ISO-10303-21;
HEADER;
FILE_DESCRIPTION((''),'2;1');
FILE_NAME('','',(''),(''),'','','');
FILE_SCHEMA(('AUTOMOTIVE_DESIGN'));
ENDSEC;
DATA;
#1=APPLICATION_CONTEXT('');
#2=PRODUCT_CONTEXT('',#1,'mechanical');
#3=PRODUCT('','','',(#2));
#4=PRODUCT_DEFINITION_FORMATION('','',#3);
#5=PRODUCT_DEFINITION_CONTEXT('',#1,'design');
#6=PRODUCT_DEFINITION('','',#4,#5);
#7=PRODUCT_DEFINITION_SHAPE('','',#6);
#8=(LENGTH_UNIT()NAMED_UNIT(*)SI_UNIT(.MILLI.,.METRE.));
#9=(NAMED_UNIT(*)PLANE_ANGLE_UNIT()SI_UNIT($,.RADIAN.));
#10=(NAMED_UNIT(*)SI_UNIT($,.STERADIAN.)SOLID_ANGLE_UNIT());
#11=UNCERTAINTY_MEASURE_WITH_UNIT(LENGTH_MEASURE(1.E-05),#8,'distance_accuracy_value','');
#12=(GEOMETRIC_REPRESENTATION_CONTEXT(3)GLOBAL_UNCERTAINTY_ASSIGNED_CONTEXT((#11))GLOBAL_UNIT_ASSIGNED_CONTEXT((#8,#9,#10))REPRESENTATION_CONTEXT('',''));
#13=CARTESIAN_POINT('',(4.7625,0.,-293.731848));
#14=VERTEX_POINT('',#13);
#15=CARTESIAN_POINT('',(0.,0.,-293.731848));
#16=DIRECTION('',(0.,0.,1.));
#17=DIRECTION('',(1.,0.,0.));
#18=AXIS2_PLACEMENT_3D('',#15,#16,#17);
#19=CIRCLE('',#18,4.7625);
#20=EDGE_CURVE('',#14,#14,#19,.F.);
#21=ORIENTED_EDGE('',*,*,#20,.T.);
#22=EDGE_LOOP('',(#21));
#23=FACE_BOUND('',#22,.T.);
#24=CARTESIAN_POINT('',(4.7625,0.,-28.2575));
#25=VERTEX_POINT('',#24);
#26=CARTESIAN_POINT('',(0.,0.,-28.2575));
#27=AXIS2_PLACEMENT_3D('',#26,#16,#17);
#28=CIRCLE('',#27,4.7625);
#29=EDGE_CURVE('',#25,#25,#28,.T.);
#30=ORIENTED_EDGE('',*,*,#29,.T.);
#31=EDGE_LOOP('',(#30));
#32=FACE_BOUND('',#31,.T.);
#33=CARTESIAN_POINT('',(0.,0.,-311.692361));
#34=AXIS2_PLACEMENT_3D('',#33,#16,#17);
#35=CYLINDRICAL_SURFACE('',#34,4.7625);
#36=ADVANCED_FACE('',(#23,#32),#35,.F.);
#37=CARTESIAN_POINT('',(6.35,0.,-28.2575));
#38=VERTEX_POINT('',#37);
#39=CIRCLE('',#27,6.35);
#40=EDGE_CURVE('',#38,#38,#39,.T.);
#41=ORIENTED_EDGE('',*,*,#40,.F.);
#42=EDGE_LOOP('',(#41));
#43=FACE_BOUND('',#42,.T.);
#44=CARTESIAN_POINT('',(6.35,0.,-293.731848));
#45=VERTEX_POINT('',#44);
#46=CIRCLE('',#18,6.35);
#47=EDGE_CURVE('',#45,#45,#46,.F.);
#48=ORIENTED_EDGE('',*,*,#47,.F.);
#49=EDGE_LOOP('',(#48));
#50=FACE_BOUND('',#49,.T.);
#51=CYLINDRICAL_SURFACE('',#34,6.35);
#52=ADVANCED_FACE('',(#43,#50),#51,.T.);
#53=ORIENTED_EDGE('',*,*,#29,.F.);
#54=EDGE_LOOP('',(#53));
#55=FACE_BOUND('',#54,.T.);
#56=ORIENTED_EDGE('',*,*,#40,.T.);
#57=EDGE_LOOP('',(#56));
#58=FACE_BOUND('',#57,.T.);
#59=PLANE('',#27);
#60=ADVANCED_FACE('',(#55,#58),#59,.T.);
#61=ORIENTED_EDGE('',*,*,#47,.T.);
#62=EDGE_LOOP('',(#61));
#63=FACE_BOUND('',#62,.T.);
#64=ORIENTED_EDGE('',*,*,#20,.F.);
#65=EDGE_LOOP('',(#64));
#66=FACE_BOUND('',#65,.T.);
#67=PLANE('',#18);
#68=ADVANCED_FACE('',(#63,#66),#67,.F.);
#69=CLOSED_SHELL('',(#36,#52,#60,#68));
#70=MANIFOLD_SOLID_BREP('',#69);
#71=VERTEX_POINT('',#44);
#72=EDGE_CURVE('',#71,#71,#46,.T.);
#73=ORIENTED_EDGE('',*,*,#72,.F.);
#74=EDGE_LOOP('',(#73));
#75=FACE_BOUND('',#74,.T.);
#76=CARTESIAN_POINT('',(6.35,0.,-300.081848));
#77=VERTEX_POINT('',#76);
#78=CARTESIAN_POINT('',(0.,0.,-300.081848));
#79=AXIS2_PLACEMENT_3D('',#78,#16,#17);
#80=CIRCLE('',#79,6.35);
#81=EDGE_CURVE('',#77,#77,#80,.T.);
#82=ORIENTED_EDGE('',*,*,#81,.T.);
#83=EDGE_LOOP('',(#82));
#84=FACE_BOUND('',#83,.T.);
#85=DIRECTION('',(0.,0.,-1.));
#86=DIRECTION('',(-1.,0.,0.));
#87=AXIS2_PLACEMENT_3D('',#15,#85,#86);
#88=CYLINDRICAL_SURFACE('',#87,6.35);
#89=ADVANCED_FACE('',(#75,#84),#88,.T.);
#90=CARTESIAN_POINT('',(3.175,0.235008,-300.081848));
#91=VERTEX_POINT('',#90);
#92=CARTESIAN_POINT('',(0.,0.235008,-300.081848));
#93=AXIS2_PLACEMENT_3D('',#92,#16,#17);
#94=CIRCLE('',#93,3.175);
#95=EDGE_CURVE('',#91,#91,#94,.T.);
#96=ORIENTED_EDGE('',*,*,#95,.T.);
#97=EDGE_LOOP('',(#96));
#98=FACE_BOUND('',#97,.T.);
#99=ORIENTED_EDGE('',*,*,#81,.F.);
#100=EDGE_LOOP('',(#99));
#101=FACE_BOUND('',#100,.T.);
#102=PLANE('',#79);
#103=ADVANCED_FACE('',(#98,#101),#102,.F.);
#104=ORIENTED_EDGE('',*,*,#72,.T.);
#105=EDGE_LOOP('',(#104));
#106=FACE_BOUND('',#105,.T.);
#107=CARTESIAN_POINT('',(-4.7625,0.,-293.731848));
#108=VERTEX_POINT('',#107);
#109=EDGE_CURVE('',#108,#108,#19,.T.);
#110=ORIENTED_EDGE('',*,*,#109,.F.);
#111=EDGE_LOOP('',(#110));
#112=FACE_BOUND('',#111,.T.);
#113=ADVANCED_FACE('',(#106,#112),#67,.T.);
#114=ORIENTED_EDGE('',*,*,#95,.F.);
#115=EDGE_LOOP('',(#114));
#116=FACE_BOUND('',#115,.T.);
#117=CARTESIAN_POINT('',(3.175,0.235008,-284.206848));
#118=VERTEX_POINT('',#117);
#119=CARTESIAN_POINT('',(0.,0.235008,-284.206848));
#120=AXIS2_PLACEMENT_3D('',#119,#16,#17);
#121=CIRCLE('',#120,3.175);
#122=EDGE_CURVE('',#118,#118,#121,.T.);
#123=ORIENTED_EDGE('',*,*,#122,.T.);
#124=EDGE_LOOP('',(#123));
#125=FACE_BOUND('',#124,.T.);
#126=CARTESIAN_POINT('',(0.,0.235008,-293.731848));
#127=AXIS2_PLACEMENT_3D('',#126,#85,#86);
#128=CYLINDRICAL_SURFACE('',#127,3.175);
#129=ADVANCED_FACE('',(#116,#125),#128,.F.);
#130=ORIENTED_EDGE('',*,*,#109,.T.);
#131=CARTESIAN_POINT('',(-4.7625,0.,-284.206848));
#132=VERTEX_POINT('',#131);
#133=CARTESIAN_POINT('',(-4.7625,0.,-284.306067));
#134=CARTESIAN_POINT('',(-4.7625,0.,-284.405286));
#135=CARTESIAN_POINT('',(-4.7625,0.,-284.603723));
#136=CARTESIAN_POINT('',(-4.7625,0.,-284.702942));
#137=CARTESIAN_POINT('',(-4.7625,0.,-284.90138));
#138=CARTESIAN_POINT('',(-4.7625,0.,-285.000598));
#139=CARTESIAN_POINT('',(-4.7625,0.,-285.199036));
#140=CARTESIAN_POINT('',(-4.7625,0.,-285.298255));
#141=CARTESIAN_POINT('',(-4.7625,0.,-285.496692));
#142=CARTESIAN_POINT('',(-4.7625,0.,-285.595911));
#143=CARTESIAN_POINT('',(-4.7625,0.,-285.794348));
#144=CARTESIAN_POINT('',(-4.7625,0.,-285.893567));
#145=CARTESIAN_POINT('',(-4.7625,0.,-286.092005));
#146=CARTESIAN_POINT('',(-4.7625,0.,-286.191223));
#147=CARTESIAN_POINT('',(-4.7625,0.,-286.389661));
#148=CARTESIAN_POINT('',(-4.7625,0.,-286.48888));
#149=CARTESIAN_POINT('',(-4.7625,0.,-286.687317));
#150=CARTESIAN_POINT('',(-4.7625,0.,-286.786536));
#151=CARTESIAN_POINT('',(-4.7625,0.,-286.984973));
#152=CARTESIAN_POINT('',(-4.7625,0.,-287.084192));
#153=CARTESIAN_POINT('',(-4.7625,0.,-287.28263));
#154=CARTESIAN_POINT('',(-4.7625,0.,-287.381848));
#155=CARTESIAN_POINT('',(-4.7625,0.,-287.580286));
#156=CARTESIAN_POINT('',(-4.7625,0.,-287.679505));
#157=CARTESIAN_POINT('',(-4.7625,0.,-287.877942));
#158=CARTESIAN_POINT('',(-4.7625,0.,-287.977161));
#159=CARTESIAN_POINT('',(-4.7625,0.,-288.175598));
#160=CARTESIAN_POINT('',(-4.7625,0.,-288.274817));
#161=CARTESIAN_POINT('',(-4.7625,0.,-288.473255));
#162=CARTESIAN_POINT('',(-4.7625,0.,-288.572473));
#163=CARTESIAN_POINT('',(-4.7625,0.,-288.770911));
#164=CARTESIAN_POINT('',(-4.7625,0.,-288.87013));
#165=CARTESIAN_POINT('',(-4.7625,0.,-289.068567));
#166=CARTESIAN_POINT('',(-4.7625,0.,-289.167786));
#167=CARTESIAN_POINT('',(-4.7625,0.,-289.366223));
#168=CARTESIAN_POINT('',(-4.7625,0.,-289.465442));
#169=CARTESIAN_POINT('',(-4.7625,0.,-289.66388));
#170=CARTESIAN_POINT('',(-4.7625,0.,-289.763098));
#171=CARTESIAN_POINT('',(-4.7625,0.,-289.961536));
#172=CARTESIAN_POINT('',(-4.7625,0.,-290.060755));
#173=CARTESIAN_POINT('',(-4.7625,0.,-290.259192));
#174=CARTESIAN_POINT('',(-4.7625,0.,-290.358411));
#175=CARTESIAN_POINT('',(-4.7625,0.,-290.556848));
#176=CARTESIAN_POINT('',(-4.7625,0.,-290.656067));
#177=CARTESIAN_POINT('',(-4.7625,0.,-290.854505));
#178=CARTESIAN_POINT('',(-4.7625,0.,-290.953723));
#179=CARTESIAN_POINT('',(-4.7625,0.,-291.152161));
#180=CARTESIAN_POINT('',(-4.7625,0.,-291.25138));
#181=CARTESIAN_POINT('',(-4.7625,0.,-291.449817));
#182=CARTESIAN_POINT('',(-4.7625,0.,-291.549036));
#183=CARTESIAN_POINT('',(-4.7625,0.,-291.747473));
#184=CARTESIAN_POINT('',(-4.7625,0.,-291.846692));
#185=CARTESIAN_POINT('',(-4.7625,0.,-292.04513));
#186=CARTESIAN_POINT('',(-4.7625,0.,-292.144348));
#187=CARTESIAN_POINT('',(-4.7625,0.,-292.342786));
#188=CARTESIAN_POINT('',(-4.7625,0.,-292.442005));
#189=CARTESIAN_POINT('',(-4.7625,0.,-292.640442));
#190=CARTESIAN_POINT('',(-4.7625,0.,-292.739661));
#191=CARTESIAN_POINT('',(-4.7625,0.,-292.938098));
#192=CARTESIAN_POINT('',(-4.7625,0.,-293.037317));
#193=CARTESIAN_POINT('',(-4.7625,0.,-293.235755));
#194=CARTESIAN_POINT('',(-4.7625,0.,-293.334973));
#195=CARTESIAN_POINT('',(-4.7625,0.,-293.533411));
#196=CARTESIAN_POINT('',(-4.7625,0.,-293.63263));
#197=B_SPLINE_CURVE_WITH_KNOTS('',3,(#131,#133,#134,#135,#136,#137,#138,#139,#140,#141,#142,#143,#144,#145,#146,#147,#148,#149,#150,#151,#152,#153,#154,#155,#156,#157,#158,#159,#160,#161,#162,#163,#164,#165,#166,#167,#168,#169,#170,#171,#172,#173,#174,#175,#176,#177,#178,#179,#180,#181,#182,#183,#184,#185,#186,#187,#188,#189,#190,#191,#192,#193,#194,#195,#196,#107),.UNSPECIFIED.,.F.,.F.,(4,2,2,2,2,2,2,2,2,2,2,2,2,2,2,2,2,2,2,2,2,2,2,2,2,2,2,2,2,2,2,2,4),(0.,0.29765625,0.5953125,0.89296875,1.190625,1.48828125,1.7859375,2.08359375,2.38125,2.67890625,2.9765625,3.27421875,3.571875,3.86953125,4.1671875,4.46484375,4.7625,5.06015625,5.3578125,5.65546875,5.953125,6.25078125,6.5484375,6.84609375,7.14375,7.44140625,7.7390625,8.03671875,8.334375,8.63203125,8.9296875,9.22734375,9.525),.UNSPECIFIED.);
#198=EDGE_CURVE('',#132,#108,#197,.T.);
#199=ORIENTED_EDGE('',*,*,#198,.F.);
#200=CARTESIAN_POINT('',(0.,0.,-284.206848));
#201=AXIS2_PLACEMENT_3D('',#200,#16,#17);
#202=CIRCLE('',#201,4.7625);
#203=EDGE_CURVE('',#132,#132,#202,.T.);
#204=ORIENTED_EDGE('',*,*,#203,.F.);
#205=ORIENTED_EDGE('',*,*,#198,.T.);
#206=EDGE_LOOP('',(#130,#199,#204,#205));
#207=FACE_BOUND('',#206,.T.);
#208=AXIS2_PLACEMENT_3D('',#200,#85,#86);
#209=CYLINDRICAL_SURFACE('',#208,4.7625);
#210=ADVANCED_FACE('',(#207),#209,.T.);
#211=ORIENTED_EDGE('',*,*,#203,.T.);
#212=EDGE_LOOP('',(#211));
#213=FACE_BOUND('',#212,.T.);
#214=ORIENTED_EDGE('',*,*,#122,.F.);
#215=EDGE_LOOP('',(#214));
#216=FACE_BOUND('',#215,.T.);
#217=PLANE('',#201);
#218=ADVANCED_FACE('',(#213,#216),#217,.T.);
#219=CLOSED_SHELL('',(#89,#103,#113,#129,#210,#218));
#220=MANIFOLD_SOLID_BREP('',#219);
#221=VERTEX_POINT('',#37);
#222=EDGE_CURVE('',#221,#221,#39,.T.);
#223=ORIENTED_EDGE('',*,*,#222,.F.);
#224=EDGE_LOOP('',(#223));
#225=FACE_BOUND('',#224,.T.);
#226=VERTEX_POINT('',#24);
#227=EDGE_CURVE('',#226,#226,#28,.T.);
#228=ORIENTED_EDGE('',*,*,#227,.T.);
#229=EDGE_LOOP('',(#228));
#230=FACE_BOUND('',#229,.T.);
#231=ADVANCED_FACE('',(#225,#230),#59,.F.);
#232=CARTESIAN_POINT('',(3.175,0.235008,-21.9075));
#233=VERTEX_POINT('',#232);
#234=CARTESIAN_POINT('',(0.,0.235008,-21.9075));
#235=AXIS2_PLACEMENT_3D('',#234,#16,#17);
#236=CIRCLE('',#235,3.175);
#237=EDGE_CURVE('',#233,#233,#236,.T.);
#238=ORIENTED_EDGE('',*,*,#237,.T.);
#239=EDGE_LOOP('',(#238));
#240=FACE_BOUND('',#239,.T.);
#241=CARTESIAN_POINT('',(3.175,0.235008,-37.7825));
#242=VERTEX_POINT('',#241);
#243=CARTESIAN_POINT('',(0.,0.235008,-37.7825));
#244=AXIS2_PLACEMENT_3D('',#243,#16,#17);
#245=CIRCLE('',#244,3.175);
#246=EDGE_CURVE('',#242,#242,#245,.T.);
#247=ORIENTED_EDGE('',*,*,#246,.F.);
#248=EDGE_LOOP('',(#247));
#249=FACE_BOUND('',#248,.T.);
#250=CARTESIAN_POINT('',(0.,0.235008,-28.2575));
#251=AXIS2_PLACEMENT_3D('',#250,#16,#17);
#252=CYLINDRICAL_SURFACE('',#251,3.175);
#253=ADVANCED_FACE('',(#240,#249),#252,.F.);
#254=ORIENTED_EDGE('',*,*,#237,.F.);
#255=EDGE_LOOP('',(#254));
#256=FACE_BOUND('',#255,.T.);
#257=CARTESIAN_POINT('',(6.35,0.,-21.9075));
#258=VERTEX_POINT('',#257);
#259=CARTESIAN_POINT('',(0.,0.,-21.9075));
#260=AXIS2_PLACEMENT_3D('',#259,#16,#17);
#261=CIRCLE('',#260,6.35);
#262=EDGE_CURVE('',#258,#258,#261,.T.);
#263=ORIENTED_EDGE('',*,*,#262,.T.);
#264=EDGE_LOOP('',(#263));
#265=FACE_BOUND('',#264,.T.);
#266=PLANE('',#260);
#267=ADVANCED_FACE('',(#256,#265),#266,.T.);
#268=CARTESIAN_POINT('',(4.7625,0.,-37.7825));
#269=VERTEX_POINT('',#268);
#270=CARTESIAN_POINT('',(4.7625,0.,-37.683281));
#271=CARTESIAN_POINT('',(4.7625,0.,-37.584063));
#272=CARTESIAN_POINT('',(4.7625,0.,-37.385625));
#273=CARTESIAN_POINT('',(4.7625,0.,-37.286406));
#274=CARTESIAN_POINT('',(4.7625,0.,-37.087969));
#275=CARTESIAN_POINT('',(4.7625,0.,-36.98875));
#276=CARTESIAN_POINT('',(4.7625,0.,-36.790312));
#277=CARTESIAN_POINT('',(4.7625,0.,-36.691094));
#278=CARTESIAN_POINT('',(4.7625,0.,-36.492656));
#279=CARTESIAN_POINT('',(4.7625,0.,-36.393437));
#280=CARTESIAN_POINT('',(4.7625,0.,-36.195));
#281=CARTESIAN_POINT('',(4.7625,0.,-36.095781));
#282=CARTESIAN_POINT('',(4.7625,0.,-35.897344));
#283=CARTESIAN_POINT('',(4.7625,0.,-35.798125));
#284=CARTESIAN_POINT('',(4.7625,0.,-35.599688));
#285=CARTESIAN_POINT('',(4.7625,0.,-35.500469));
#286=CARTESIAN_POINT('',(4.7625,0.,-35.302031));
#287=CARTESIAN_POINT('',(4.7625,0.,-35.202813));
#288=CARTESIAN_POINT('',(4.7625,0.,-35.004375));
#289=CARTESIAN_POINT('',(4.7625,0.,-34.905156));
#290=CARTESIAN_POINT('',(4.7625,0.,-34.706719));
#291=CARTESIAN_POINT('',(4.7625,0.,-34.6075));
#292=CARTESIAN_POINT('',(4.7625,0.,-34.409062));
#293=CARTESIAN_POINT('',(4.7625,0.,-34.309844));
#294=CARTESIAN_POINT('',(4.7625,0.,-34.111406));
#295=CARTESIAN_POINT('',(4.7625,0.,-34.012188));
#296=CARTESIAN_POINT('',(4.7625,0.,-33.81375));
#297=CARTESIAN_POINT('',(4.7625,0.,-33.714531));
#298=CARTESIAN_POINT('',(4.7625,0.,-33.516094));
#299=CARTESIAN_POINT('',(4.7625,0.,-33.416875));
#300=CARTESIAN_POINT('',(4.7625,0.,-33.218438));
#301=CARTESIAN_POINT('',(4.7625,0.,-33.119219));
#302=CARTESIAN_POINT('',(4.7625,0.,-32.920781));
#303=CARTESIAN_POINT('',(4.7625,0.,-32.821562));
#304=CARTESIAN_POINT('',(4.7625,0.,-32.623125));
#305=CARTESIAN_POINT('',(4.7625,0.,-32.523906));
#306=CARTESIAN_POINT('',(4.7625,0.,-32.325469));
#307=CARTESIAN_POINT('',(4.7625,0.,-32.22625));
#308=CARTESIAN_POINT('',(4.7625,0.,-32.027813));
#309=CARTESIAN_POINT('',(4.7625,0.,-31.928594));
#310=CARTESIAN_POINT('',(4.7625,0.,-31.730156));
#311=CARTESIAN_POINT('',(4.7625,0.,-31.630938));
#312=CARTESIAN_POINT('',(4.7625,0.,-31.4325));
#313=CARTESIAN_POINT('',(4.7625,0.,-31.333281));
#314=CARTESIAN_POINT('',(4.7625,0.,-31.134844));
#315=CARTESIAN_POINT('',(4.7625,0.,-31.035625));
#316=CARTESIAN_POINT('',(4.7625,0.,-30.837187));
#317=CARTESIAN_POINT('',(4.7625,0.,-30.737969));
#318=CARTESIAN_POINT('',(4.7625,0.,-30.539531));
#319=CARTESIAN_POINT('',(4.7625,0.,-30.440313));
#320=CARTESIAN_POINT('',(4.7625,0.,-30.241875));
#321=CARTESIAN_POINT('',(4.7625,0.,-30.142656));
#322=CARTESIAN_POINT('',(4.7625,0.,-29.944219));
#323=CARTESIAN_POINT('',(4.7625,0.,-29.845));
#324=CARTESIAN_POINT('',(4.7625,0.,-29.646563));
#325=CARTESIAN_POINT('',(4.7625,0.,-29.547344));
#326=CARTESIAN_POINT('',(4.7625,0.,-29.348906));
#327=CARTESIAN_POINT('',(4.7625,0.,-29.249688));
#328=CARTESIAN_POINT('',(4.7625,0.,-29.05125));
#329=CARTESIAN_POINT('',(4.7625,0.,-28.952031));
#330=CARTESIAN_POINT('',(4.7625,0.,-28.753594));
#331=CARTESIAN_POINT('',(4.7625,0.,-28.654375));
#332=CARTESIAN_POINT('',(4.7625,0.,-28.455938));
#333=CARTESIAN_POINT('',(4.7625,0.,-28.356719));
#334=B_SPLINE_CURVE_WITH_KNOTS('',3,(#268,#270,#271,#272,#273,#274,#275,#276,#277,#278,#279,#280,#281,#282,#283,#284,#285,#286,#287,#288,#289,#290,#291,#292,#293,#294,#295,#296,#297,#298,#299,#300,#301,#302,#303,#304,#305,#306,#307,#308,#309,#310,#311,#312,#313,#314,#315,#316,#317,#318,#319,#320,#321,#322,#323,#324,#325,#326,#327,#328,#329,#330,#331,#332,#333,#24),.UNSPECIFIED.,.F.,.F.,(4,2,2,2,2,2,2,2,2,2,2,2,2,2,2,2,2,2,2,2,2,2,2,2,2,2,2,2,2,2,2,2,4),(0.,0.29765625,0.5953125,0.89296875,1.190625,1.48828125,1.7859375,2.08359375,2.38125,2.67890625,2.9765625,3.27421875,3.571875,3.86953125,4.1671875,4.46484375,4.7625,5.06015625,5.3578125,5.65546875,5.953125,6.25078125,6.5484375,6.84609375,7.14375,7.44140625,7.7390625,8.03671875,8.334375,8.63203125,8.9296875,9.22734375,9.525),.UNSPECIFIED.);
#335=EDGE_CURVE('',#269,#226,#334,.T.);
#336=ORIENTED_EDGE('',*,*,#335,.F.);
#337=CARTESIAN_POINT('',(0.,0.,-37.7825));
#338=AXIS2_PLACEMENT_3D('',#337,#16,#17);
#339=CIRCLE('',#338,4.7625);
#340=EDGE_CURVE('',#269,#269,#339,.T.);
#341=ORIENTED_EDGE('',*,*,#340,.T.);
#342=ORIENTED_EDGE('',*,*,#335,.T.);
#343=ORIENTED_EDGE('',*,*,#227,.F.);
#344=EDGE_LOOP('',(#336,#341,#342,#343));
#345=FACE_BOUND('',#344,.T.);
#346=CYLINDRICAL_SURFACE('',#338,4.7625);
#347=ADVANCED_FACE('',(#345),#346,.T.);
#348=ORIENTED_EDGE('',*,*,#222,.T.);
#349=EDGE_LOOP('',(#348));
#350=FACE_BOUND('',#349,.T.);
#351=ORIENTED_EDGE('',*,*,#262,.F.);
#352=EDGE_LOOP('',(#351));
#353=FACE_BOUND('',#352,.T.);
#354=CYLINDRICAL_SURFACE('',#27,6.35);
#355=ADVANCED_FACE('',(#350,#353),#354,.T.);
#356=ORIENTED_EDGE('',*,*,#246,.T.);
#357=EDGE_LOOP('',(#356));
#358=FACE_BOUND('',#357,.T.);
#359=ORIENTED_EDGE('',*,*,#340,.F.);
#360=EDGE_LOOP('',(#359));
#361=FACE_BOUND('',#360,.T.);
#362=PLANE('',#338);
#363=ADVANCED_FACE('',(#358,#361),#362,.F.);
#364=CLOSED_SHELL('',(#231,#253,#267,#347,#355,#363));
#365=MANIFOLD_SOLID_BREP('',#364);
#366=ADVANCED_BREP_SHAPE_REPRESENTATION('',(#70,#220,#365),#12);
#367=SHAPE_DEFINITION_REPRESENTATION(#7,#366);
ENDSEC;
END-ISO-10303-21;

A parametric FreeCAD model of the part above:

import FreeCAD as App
import Part
import Sketcher
Q = App.Units.Quantity

doc = App.newDocument("Part")
body = doc.addObject("PartDesign::Body", "Body")

sketch1 = body.newObject("Sketcher::SketchObject", "Sketch")
sketch1.AttachmentSupport = (doc.getObject("XY_Plane"), [""])
sketch1.MapMode = "FlatFace"
sketch1.AttachmentOffset = App.Placement(App.Vector(0, 0, -0.8625 * 25.4), App.Rotation())
sketch1.addGeometry([
    Part.Circle(App.Vector(0, 0, 0), App.Vector(0, 0, 1), 6.35),
    Part.Circle(App.Vector(0, 0.235008, 0), App.Vector(0, 0, 1), 3.175),
], False)
sketch1.addConstraint([
    Sketcher.Constraint("Coincident", 0, 3, -1, 1),
    Sketcher.Constraint("PointOnObject", 1, 3, -2),
    Sketcher.Constraint("Diameter", 0, Q("0.5 in")),
    Sketcher.Constraint("Diameter", 1, Q("0.25 in")),
    Sketcher.Constraint("DistanceY", -1, 1, 1, 3, 0.235008),
])
pad1 = body.newObject("PartDesign::Pad", "Pad")
pad1.Profile = sketch1
pad1.Length = Q("0.25 in")
pad1.Reversed = True

sketch2 = body.newObject("Sketcher::SketchObject", "Sketch001")
sketch2.AttachmentSupport = (doc.getObject("XY_Plane"), [""])
sketch2.MapMode = "FlatFace"
sketch2.AttachmentOffset = App.Placement(App.Vector(0, 0, -1.1125 * 25.4), App.Rotation())
sketch2.addGeometry([
    Part.Circle(App.Vector(0, 0, 0), App.Vector(0, 0, 1), 4.7625),
    Part.Circle(App.Vector(0, 0.235008, 0), App.Vector(0, 0, 1), 3.175),
], False)
sketch2.addConstraint([
    Sketcher.Constraint("Coincident", 0, 3, -1, 1),
    Sketcher.Constraint("PointOnObject", 1, 3, -2),
    Sketcher.Constraint("Diameter", 1, Q("0.25 in")),
    Sketcher.Constraint("Diameter", 0, Q("0.375 in")),
    Sketcher.Constraint("DistanceY", -1, 1, 1, 3, 0.235008),
])
pad2 = body.newObject("PartDesign::Pad", "Pad001")
pad2.Profile = sketch2
pad2.Length = Q("0.375 in")
pad2.Reversed = True
body2 = doc.addObject("PartDesign::Body", "Body001")

sketch3 = body2.newObject("Sketcher::SketchObject", "Sketch002")
sketch3.AttachmentSupport = (doc.getObject("XY_Plane001"), [""])
sketch3.MapMode = "FlatFace"
sketch3.AttachmentOffset = App.Placement(App.Vector(0, 0, -300.081848), App.Rotation())
sketch3.addGeometry([
    Part.Circle(App.Vector(0, 0, 0), App.Vector(0, 0, 1), 6.35),
    Part.Circle(App.Vector(0, 0.235008, 0), App.Vector(0, 0, 1), 3.175),
], False)
sketch3.addConstraint([
    Sketcher.Constraint("Coincident", 0, 3, -1, 1),
    Sketcher.Constraint("PointOnObject", 1, 3, -2),
    Sketcher.Constraint("Diameter", 0, Q("0.5 in")),
    Sketcher.Constraint("Diameter", 1, Q("0.25 in")),
    Sketcher.Constraint("DistanceY", -1, 1, 1, 3, 0.235008),
])
pad3 = body2.newObject("PartDesign::Pad", "Pad002")
pad3.Profile = sketch3
pad3.Length = Q("0.25 in")

sketch4 = body2.newObject("Sketcher::SketchObject", "Sketch003")
sketch4.AttachmentSupport = (doc.getObject("XY_Plane001"), [""])
sketch4.MapMode = "FlatFace"
sketch4.AttachmentOffset = App.Placement(App.Vector(0, 0, -284.206848), App.Rotation())
sketch4.addGeometry([
    Part.Circle(App.Vector(0, 0, 0), App.Vector(0, 0, 1), 4.7625),
    Part.Circle(App.Vector(0, 0.235008, 0), App.Vector(0, 0, 1), 3.175),
], False)
sketch4.addConstraint([
    Sketcher.Constraint("Coincident", 0, 3, -1, 1),
    Sketcher.Constraint("PointOnObject", 1, 3, -2),
    Sketcher.Constraint("Diameter", 1, Q("0.25 in")),
    Sketcher.Constraint("Diameter", 0, Q("0.375 in")),
    Sketcher.Constraint("DistanceY", -1, 1, 1, 3, 0.235008),
])
pad4 = body2.newObject("PartDesign::Pad", "Pad003")
pad4.Profile = sketch4
pad4.Length = Q("0.375 in")
pad4.Reversed = True
body3 = doc.addObject("PartDesign::Body", "Body002")

sketch5 = body3.newObject("Sketcher::SketchObject", "Sketch004")
sketch5.AttachmentSupport = (doc.getObject("XY_Plane002"), [""])
sketch5.MapMode = "FlatFace"
sketch5.AttachmentOffset = App.Placement(App.Vector(0, 0, -1.1125 * 25.4), App.Rotation())
sketch5.addGeometry([
    Part.Circle(App.Vector(0, 0, 0), App.Vector(0, 0, 1), 6.35),
    Part.Circle(App.Vector(0, 0, 0), App.Vector(0, 0, 1), 4.7625),
], False)
sketch5.addConstraint([
    Sketcher.Constraint("Coincident", 0, 3, -1, 1),
    Sketcher.Constraint("Coincident", 1, 3, -1, 1),
    Sketcher.Constraint("Diameter", 0, Q("0.5 in")),
    Sketcher.Constraint("Diameter", 1, Q("0.375 in")),
])
pad5 = body3.newObject("PartDesign::Pad", "Pad004")
pad5.Profile = sketch5
pad5.Length = 265.474348
pad5.Reversed = True

doc.recompute()
